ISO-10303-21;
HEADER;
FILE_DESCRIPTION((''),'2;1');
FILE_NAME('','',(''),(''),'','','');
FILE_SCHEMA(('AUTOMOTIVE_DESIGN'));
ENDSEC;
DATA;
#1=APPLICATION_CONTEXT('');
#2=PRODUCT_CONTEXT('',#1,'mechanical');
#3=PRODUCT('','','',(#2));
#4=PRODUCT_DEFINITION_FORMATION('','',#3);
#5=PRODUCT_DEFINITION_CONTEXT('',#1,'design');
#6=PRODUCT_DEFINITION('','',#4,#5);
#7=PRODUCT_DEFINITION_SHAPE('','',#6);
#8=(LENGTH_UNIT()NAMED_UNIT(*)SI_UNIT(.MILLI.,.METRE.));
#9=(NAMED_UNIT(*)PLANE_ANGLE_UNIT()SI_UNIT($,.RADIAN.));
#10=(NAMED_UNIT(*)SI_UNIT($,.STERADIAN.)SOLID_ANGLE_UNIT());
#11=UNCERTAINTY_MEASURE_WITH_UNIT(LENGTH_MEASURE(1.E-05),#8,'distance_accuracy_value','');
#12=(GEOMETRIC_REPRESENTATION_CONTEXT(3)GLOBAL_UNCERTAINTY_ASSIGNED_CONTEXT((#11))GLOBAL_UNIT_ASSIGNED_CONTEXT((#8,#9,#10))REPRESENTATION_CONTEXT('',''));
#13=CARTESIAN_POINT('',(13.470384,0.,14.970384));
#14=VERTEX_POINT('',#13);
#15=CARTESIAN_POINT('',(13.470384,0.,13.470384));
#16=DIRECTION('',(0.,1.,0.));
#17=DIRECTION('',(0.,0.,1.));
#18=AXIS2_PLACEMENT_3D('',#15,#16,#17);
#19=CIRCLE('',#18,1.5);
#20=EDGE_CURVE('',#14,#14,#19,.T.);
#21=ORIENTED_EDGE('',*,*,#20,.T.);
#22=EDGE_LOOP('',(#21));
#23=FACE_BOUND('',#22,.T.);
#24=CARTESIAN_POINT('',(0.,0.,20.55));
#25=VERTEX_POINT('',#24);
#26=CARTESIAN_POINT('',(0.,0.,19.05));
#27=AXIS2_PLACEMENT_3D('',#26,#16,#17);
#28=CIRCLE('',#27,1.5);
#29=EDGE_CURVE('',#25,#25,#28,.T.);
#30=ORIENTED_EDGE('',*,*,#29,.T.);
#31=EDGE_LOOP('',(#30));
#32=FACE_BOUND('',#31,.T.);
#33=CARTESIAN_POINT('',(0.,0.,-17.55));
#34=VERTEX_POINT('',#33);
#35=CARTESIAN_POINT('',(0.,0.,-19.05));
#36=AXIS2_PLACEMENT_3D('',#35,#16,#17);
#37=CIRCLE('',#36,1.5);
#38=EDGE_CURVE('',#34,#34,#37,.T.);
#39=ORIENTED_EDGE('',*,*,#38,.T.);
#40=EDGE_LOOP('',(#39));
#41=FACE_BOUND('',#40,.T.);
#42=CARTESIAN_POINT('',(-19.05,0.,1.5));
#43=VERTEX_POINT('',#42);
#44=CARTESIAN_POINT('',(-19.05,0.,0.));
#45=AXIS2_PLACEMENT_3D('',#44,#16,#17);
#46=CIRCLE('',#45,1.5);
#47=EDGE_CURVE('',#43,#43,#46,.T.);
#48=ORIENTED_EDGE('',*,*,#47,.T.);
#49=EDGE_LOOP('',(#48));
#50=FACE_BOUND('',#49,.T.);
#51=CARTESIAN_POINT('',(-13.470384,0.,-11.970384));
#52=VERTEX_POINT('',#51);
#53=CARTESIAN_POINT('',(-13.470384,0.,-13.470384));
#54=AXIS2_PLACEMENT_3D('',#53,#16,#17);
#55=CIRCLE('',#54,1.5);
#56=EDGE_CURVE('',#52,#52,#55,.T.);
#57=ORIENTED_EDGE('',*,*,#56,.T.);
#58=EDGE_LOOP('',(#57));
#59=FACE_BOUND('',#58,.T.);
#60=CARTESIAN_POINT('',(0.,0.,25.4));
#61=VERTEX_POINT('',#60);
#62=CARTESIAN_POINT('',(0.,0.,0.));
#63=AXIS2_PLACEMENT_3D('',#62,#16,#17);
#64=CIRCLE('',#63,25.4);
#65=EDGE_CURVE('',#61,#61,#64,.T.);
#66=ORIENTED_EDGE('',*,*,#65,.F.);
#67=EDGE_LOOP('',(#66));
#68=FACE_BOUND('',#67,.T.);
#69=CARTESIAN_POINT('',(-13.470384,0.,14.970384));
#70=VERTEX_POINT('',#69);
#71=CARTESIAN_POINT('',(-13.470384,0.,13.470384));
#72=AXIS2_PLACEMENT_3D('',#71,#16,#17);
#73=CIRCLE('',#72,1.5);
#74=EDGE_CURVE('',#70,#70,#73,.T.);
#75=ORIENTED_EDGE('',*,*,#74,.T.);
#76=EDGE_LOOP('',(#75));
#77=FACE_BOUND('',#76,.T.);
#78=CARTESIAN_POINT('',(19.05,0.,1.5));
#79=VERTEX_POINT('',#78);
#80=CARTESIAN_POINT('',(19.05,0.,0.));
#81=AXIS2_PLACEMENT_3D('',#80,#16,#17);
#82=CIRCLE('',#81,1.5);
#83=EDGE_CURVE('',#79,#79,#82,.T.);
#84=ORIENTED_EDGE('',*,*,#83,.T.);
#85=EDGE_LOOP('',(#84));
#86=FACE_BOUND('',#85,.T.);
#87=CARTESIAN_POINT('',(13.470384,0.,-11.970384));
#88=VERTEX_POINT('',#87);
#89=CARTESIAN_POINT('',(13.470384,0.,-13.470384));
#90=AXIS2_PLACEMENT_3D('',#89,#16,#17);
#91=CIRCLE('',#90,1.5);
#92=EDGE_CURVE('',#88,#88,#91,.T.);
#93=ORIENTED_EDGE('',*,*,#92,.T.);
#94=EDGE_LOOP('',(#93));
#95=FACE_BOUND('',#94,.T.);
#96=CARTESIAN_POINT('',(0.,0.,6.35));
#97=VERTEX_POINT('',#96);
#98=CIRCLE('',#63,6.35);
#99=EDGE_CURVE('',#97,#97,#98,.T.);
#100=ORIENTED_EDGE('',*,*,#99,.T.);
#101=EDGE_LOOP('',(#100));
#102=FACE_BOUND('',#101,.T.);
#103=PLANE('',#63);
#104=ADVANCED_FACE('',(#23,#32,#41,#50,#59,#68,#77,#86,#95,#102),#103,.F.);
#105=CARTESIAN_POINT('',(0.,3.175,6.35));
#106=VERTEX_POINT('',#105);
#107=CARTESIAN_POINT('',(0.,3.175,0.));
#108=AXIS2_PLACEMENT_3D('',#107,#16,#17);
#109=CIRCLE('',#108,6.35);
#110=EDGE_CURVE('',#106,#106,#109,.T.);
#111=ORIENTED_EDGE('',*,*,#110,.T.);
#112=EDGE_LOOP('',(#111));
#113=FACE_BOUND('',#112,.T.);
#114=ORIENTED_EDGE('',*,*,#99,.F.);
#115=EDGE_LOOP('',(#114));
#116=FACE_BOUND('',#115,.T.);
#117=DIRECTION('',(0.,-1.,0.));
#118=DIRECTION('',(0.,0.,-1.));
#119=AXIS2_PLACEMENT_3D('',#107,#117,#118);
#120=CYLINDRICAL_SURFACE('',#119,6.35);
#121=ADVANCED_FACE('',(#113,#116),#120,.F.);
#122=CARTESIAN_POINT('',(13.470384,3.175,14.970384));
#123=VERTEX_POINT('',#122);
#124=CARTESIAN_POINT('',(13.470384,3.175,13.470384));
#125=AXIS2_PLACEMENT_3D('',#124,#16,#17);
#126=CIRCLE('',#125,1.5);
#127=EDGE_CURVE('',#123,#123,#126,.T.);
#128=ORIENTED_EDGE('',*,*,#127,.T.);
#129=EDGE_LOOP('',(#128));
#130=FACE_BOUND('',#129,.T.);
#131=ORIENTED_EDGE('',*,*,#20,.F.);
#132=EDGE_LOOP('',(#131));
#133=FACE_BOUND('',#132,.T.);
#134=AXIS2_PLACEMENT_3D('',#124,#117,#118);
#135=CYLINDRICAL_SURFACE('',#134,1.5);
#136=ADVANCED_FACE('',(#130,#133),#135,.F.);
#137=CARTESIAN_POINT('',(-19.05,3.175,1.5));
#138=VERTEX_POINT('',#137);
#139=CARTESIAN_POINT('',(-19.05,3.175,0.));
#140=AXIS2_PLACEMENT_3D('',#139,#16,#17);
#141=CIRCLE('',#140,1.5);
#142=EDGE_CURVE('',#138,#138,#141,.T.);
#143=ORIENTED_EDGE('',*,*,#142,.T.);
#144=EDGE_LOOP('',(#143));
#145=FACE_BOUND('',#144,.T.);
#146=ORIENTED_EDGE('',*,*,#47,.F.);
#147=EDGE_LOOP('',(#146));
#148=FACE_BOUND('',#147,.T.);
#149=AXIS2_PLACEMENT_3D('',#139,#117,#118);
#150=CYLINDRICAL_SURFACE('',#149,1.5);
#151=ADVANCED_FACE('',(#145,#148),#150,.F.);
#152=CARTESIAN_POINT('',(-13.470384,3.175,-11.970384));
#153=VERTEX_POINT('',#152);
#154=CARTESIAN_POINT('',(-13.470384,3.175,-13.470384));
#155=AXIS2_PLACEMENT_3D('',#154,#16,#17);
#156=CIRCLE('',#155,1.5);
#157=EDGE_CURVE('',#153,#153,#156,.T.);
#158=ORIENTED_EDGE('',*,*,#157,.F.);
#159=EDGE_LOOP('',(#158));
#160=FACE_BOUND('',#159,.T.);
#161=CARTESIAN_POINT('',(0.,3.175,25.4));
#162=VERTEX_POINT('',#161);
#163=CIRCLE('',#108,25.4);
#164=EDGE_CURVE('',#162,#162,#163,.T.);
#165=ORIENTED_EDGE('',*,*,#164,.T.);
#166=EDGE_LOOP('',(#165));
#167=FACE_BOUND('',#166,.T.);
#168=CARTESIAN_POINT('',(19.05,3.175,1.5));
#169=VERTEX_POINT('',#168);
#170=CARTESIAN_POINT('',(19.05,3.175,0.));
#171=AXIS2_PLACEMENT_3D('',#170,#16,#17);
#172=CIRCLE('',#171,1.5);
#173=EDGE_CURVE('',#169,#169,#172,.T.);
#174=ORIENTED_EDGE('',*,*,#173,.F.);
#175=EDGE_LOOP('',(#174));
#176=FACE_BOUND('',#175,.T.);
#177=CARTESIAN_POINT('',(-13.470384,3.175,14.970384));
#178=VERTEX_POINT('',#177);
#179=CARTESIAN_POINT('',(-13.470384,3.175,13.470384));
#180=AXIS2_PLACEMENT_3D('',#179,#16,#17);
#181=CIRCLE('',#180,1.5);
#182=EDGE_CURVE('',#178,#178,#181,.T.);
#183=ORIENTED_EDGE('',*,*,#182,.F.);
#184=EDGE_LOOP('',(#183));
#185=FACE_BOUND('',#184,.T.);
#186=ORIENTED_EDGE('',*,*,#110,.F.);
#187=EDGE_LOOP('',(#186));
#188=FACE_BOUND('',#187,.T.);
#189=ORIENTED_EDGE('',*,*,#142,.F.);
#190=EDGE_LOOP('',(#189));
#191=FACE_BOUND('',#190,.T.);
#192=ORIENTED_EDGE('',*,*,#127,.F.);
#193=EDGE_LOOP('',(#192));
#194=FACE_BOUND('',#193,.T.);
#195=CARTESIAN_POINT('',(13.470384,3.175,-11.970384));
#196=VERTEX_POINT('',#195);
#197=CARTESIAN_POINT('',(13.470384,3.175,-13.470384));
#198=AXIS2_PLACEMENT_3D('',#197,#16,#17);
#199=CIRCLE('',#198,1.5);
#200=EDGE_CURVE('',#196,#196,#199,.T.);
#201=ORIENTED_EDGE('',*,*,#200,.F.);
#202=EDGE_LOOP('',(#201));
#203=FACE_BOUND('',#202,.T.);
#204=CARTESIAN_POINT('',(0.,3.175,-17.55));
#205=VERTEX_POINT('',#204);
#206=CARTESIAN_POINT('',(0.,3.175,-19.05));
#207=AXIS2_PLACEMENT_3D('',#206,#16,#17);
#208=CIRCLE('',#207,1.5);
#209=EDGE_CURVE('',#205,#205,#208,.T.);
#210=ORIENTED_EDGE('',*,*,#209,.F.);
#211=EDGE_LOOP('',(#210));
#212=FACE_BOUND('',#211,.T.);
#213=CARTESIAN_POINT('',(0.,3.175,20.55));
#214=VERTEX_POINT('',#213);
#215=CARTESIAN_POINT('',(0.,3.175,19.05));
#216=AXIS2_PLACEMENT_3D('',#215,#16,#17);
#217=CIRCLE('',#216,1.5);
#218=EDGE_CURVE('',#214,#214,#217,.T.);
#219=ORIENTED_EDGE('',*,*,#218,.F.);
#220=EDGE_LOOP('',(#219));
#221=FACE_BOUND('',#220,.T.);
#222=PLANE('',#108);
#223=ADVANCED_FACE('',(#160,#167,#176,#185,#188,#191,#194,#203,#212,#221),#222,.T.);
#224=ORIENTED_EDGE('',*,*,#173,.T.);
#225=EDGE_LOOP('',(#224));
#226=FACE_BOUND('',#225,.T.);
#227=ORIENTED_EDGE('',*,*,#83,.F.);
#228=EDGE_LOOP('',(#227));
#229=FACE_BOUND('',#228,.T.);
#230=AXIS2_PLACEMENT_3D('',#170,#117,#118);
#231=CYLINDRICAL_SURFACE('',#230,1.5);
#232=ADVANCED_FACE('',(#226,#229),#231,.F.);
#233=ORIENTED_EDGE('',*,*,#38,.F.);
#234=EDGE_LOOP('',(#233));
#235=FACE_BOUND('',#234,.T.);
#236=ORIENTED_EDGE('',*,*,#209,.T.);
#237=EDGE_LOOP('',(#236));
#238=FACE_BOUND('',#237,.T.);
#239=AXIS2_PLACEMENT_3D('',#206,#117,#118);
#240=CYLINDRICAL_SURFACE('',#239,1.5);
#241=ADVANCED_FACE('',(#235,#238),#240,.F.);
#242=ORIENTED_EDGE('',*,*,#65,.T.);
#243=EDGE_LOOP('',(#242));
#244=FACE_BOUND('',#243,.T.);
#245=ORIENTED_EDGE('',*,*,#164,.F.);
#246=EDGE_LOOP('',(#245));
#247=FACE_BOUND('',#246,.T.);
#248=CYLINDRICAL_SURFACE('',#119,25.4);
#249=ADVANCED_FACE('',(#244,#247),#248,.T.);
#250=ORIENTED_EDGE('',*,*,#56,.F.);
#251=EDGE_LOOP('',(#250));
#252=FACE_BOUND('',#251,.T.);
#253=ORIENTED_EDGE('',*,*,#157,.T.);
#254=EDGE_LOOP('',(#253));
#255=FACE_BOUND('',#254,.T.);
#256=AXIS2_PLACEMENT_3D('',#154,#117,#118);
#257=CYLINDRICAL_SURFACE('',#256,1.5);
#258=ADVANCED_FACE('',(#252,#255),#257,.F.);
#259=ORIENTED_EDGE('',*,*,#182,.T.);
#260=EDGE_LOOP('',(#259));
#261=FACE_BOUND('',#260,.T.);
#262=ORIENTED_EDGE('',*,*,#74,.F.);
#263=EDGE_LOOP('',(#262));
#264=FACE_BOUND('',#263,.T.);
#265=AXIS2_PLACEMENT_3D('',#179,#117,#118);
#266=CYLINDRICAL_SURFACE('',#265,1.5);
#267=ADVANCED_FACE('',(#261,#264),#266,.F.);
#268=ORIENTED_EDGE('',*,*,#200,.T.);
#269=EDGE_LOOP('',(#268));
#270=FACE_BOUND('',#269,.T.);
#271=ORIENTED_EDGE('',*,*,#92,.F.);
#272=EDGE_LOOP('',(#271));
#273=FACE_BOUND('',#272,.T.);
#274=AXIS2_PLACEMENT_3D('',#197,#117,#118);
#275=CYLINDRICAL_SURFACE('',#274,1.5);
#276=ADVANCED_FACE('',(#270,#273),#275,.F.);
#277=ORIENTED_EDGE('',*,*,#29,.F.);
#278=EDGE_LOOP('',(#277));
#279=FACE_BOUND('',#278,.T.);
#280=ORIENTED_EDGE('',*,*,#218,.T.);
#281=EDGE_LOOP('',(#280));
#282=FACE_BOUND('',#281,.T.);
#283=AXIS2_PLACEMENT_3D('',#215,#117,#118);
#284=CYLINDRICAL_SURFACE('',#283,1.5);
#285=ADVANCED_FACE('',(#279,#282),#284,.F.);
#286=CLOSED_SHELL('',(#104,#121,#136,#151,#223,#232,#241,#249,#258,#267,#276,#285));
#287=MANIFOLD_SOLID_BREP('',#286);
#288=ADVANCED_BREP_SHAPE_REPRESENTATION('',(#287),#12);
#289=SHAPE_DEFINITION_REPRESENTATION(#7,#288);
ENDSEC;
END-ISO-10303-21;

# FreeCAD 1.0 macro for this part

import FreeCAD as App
import Part
import Sketcher

V = App.Vector
Q = App.Units.Quantity

doc = App.newDocument("Part")
body = doc.addObject("PartDesign::Body", "Body")

# Sketch on XZ plane
sketch1 = body.newObject("Sketcher::SketchObject", "Sketch")
sketch1.AttachmentSupport = (doc.getObject("XZ_Plane"), [""])
sketch1.MapMode = "FlatFace"
sketch1.addGeometry(Part.Circle(V(0, 0, 0), V(0, 0, 1), 25.4), False)
sketch1.addGeometry(Part.Circle(V(-13.470384, -13.470384, 0), V(0, 0, 1), 1.5), False)
sketch1.addGeometry(Part.Circle(V(0, -19.05, 0), V(0, 0, 1), 1.5), False)
sketch1.addGeometry(Part.Circle(V(-19.05, 0, 0), V(0, 0, 1), 1.5), False)
sketch1.addGeometry(Part.Circle(V(-13.470384, 13.470384, 0), V(0, 0, 1), 1.5), False)
sketch1.addGeometry(Part.Circle(V(13.470384, -13.470384, 0), V(0, 0, 1), 1.5), False)
sketch1.addGeometry(Part.Circle(V(19.05, 0, 0), V(0, 0, 1), 1.5), False)
sketch1.addGeometry(Part.Circle(V(0, 0, 0), V(0, 0, 1), 6.35), False)
sketch1.addGeometry(Part.Circle(V(0, 19.05, 0), V(0, 0, 1), 1.5), False)
sketch1.addGeometry(Part.Circle(V(13.470384, 13.470384, 0), V(0, 0, 1), 1.5), False)
sketch1.addConstraint(Sketcher.Constraint("Coincident", 0, 3, -1, 1))
sketch1.addConstraint(Sketcher.Constraint("Coincident", 7, 3, -1, 1))
sketch1.addConstraint(Sketcher.Constraint("Equal", 1, 2))
sketch1.addConstraint(Sketcher.Constraint("Equal", 2, 3))
sketch1.addConstraint(Sketcher.Constraint("Equal", 3, 4))
sketch1.addConstraint(Sketcher.Constraint("Equal", 4, 5))
sketch1.addConstraint(Sketcher.Constraint("Equal", 5, 6))
sketch1.addConstraint(Sketcher.Constraint("Equal", 6, 8))
sketch1.addConstraint(Sketcher.Constraint("Equal", 8, 9))
sketch1.addConstraint(Sketcher.Constraint("Symmetric", 4, 3, 5, 3, -1, 1))
sketch1.addConstraint(Sketcher.Constraint("Symmetric", 3, 3, 6, 3, -1, 1))
sketch1.addConstraint(Sketcher.Constraint("Symmetric", 2, 3, 8, 3, -1, 1))
sketch1.addConstraint(Sketcher.Constraint("Symmetric", 1, 3, 9, 3, -1, 1))
sketch1.addConstraint(Sketcher.Constraint("Symmetric", 1, 3, 5, 3, -2))
sketch1.addConstraint(Sketcher.Constraint("PointOnObject", 2, 3, -2))
sketch1.addConstraint(Sketcher.Constraint("PointOnObject", 3, 3, -1))
sketch1.addConstraint(Sketcher.Constraint("Diameter", 0, Q("2 in")))
sketch1.addConstraint(Sketcher.Constraint("Diameter", 7, Q("0.5 in")))
sketch1.addConstraint(Sketcher.Constraint("Diameter", 1, 3.0))
sketch1.addConstraint(Sketcher.Constraint("DistanceY", 2, 3, -1, 1, Q("0.75 in")))
sketch1.addConstraint(Sketcher.Constraint("DistanceX", 3, 3, -1, 1, Q("0.75 in")))
sketch1.addConstraint(Sketcher.Constraint("DistanceY", 1, 3, 4, 3, 26.940768))
sketch1.addConstraint(Sketcher.Constraint("DistanceX", 1, 3, 5, 3, 26.940768))
pad1 = body.newObject("PartDesign::Pad", "Pad")
pad1.Profile = sketch1
pad1.Length = Q("0.125 in")
pad1.Reversed = True

doc.recompute()
